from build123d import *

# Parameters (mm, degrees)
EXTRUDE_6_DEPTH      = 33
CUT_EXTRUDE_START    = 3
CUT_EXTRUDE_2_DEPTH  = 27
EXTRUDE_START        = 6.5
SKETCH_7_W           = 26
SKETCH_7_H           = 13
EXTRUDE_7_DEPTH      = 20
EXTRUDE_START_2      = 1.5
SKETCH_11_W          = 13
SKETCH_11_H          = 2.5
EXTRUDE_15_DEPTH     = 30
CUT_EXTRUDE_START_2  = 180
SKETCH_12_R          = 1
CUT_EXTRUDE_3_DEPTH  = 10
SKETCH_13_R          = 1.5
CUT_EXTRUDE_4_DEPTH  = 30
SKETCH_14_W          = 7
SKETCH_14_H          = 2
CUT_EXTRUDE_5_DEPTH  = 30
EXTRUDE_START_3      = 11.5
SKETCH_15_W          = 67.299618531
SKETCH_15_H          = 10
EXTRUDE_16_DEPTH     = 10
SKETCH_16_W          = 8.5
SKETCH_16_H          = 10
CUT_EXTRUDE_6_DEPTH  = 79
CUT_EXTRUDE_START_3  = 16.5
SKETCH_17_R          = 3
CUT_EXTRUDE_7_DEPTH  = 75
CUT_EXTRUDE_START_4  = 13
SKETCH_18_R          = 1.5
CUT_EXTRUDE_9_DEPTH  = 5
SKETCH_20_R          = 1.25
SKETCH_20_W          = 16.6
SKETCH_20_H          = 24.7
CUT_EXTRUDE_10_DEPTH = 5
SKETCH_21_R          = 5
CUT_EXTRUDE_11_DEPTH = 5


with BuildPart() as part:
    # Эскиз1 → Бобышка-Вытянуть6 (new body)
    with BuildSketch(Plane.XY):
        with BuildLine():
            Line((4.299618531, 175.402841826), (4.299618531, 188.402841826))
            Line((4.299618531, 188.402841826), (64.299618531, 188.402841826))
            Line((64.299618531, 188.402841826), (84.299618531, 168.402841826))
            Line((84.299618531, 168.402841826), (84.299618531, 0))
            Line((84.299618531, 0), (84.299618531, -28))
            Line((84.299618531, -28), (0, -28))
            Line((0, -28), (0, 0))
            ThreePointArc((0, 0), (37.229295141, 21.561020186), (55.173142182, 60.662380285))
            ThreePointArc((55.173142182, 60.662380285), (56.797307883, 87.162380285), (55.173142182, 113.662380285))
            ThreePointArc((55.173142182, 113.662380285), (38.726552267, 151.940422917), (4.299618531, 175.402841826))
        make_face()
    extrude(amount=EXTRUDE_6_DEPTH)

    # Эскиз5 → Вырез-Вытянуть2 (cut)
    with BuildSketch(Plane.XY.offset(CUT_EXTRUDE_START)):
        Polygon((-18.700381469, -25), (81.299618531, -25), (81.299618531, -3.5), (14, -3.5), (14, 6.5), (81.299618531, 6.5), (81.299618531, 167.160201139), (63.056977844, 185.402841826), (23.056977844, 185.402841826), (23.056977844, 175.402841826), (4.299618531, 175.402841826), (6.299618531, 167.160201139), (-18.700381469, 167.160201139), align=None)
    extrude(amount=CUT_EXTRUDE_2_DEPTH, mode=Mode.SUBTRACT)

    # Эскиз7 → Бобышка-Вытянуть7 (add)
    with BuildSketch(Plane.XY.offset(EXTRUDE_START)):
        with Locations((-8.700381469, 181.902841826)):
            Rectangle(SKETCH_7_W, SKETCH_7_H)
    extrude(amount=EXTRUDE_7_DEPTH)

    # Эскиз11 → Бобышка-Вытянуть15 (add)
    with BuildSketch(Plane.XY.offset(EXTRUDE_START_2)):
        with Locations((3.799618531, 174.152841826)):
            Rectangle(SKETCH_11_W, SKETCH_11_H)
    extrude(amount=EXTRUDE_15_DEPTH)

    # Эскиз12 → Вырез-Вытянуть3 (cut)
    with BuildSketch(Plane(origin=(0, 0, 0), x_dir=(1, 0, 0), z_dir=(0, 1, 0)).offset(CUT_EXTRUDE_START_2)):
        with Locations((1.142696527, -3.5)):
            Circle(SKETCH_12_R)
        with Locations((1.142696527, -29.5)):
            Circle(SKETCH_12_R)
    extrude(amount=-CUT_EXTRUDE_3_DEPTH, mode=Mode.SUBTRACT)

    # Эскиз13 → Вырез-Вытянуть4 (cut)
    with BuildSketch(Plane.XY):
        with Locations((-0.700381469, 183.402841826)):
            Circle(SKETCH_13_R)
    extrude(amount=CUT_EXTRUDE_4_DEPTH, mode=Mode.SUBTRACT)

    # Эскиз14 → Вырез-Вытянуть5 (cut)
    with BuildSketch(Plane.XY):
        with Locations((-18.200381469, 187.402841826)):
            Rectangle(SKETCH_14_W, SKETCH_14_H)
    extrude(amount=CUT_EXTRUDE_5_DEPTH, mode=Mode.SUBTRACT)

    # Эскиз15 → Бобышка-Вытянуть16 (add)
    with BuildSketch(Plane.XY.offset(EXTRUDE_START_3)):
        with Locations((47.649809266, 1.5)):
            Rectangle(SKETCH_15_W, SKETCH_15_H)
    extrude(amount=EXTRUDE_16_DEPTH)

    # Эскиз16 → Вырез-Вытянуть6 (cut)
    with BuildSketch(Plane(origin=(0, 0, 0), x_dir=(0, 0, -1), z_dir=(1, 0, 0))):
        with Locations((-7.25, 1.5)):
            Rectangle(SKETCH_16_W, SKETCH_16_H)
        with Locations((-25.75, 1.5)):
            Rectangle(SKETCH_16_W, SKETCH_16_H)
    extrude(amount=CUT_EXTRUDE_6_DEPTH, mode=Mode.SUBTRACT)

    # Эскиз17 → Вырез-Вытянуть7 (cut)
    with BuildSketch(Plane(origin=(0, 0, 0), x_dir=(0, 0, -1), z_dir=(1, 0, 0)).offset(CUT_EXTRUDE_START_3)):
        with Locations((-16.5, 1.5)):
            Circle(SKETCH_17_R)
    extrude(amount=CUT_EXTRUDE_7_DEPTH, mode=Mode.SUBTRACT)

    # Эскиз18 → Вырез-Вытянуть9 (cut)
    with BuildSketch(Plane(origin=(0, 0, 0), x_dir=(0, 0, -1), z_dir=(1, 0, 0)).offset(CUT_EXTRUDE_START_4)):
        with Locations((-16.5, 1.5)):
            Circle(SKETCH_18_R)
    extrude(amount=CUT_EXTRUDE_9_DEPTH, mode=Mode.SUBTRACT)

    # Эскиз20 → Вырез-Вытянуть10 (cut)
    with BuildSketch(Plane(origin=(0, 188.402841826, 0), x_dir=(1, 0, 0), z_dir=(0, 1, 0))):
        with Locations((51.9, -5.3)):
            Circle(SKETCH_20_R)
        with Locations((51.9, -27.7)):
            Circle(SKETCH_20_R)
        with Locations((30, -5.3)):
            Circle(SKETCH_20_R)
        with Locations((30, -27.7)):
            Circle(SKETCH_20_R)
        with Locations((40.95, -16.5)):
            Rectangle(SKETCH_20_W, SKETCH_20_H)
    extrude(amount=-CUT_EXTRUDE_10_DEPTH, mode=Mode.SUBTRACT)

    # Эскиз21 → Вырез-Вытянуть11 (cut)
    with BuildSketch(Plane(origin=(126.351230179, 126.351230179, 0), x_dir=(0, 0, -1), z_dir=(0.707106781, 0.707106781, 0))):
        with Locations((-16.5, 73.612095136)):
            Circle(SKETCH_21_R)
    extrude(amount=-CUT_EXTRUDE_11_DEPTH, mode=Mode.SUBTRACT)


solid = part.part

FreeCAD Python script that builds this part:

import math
import FreeCAD as App
import Part
import Sketcher

V = App.Vector
Q = App.Units.Quantity


def add_polygon(sketch, points):
    """Adds a closed chain of lines whose ends are joined by coincident constraints."""
    first, n = sketch.GeometryCount, len(points)
    for a, b in zip(points, points[1:] + points[:1]):
        sketch.addGeometry(Part.LineSegment(App.Vector(*a, 0), App.Vector(*b, 0)), False)
    for i in range(n):
        sketch.addConstraint(Sketcher.Constraint("Coincident", first + i, 2, first + (i + 1) % n, 1))

doc = App.newDocument("Part")
body = doc.addObject("PartDesign::Body", "Body")

# Sketch on XY plane
sketch1 = doc.addObject("Sketcher::SketchObject", "Sketch")
body.addObject(sketch1)
sketch1.AttachmentSupport = (doc.XY_Plane, [""])
sketch1.MapMode = "FlatFace"
sketch1.addGeometry([
    Part.LineSegment(V(4, 188, 0), V(4, 175, 0)),  # 0
    Part.ArcOfCircle(Part.Circle(V(-19, 105, 0), V(0, 0, 1), 75), math.radians(7), math.radians(72)),  # 1
    Part.ArcOfCircle(Part.Circle(V(-160, 87, 0), V(0, 0, 1), 217), math.radians(-7.01), math.radians(7.01)),  # 2
    Part.ArcOfCircle(Part.Circle(V(-15, 69, 0), V(0, 0, 1), 71), math.radians(-78), math.radians(-7)),  # 3
    Part.LineSegment(V(0, 0, 0), V(0, -28, 0)),  # 4
    Part.LineSegment(V(0, -28, 0), V(84, -28, 0)),  # 5
    Part.LineSegment(V(84, -28, 0), V(84, 168, 0)),  # 6
    Part.LineSegment(V(84, 168, 0), V(64, 188, 0)),  # 7
    Part.LineSegment(V(64, 188, 0), V(4, 188, 0)),  # 8
], False)
sketch1.addConstraint([
    Sketcher.Constraint("Coincident", 0, 2, 1, 2),
    Sketcher.Constraint("Tangent", 1, 1, 2, 2),
    Sketcher.Constraint("Tangent", 2, 1, 3, 2),
    Sketcher.Constraint("Coincident", 3, 1, 4, 1),
    Sketcher.Constraint("Coincident", 4, 2, 5, 1),
    Sketcher.Constraint("Coincident", 5, 2, 6, 1),
    Sketcher.Constraint("Coincident", 6, 2, 7, 1),
    Sketcher.Constraint("Coincident", 7, 2, 8, 1),
    Sketcher.Constraint("Coincident", 8, 2, 0, 1),
    Sketcher.Constraint("Vertical", 0),
    Sketcher.Constraint("Vertical", 4),
    Sketcher.Constraint("Horizontal", 5),
    Sketcher.Constraint("Vertical", 6),
    Sketcher.Constraint("Horizontal", 8),
    Sketcher.Constraint("Coincident", 3, 1, -1, 1),
    Sketcher.Constraint("Vertical", 1, 1, 2, 1),
    Sketcher.Constraint("Radius", 2, 217.0),
    Sketcher.Constraint("Radius", 3, 71.0),
    Sketcher.Constraint("Radius", 1, 74.5),
    Sketcher.Constraint("DistanceX", 8, 2, 8, 1, 60.0),
    Sketcher.Constraint("DistanceY", 0, 2, 0, 1, 13.0),
    Sketcher.Constraint("DistanceY", 4, 2, 4, 1, 28.0),
    Sketcher.Constraint("Angle", 7, Q("135 deg")),
    Sketcher.Constraint("DistanceY", 2, 1, 1, 1, 53.0),
    Sketcher.Constraint("DistanceX", 0, 2, 6, 2, 80.0),
    Sketcher.Constraint("DistanceX", 5, 1, 5, 2, 84.299619),
    Sketcher.Constraint("DistanceY", 6, 1, 6, 2, 196.402842),
])
pad1 = doc.addObject("PartDesign::Pad", "Pad")
body.addObject(pad1)
pad1.Profile = sketch1
pad1.Length = 33

# Sketch on XY plane
sketch2 = doc.addObject("Sketcher::SketchObject", "Sketch001")
body.addObject(sketch2)
sketch2.AttachmentSupport = (doc.XY_Plane, [""])
sketch2.MapMode = "FlatFace"
sketch2.AttachmentOffset = App.Placement(V(0, 0, 3), App.Rotation())
add_polygon(sketch2, [(-19, -25), (81, -25), (81, -4), (14, -4), (14, 6), (81, 6), (81, 167), (63, 185), (23, 185), (23, 175), (4, 175), (6, 167), (-19, 167)])  # lines 0-12
sketch2.addConstraint([
    Sketcher.Constraint("Horizontal", 0),
    Sketcher.Constraint("Vertical", 1),
    Sketcher.Constraint("Horizontal", 2),
    Sketcher.Constraint("Vertical", 3),
    Sketcher.Constraint("Horizontal", 4),
    Sketcher.Constraint("Vertical", 5),
    Sketcher.Constraint("Horizontal", 7),
    Sketcher.Constraint("Vertical", 8),
    Sketcher.Constraint("Horizontal", 9),
    Sketcher.Constraint("Horizontal", 11),
    Sketcher.Constraint("Vertical", 12),
    Sketcher.Constraint("Horizontal", 5, 2, 10, 2),
    Sketcher.Constraint("Vertical", 1, 2, 4, 2),
    Sketcher.Constraint("Equal", 3, 8),
    Sketcher.Constraint("DistanceX", 0, 1, 0, 2, 100.0),
    Sketcher.Constraint("DistanceX", 7, 2, 7, 1, 40.0),
    Sketcher.Constraint("DistanceX", 11, 2, 11, 1, 25.0),
    Sketcher.Constraint("DistanceY", 3, 1, 3, 2, 10.0),
    Sketcher.Constraint("Angle", 6, Q("135 deg")),
    Sketcher.Constraint("DistanceY", 1, 1, 1, 2, 21.5),
    Sketcher.Constraint("DistanceY", 0, 2, -1, 1, 25.0),
    Sketcher.Constraint("DistanceX", -1, 1, 2, 2, 14.0),
    Sketcher.Constraint("DistanceX", 9, 2, 5, 2, 77.0),
    Sketcher.Constraint("DistanceY", 5, 1, 5, 2, 160.660201),
    Sketcher.Constraint("DistanceX", 2, 2, 2, 1, 67.299619),
    Sketcher.Constraint("DistanceX", 9, 2, 9, 1, 18.757359),
])
pocket1 = doc.addObject("PartDesign::Pocket", "Pocket")
body.addObject(pocket1)
pocket1.Profile = sketch2
pocket1.Length = 27
pocket1.Reversed = True

# Sketch on XY plane
sketch3 = doc.addObject("Sketcher::SketchObject", "Sketch002")
body.addObject(sketch3)
sketch3.AttachmentSupport = (doc.XY_Plane, [""])
sketch3.MapMode = "FlatFace"
sketch3.AttachmentOffset = App.Placement(V(0, 0, 6.5), App.Rotation())
add_polygon(sketch3, [(-22, 188), (-22, 175), (4, 175), (4, 188)])  # lines 0-3
sketch3.addConstraint([
    Sketcher.Constraint("Vertical", 0),
    Sketcher.Constraint("Horizontal", 1),
    Sketcher.Constraint("Vertical", 2),
    Sketcher.Constraint("Horizontal", 3),
    Sketcher.Constraint("DistanceX", 1, 1, 1, 2, 26.0),
    Sketcher.Constraint("DistanceY", 0, 2, 0, 1, 13.0),
    Sketcher.Constraint("DistanceX", 0, 2, -1, 1, 21.700381),
    Sketcher.Constraint("DistanceY", -1, 1, 0, 2, 175.402842),
])
pad2 = doc.addObject("PartDesign::Pad", "Pad001")
body.addObject(pad2)
pad2.Profile = sketch3
pad2.Length = 20

# Sketch on XY plane
sketch4 = doc.addObject("Sketcher::SketchObject", "Sketch003")
body.addObject(sketch4)
sketch4.AttachmentSupport = (doc.XY_Plane, [""])
sketch4.MapMode = "FlatFace"
sketch4.AttachmentOffset = App.Placement(V(0, 0, 1.5), App.Rotation())
add_polygon(sketch4, [(-2.7, 175.4), (-2.7, 172.9), (10.3, 172.9), (10.3, 175.4)])  # lines 0-3
sketch4.addConstraint([
    Sketcher.Constraint("Vertical", 0),
    Sketcher.Constraint("Horizontal", 1),
    Sketcher.Constraint("Vertical", 2),
    Sketcher.Constraint("Horizontal", 3),
    Sketcher.Constraint("DistanceX", 1, 1, 1, 2, 13.0),
    Sketcher.Constraint("DistanceY", 0, 2, 0, 1, 2.5),
    Sketcher.Constraint("DistanceX", 0, 2, -1, 1, 2.700381),
    Sketcher.Constraint("DistanceY", -1, 1, 0, 2, 172.902842),
])
pad3 = doc.addObject("PartDesign::Pad", "Pad002")
body.addObject(pad3)
pad3.Profile = sketch4
pad3.Length = 30

# Sketch on XZ plane
sketch5 = doc.addObject("Sketcher::SketchObject", "Sketch004")
body.addObject(sketch5)
sketch5.AttachmentSupport = (doc.XZ_Plane, [""])
sketch5.MapMode = "FlatFace"
sketch5.AttachmentOffset = App.Placement(V(0, 0, -180), App.Rotation())
sketch5.addGeometry([
    Part.Circle(V(1.1, 3.5, 0), V(0, 0, 1), 1),
    Part.Circle(V(1.1, 29.5, 0), V(0, 0, 1), 1),
], False)
sketch5.addConstraint([
    Sketcher.Constraint("Equal", 0, 1),
    Sketcher.Constraint("Vertical", 0, 3, 1, 3),
    Sketcher.Constraint("Diameter", 0, 2.0),
    Sketcher.Constraint("DistanceY", 0, 3, 1, 3, 26.0),
    Sketcher.Constraint("DistanceY", -1, 1, 0, 3, 3.5),
    Sketcher.Constraint("DistanceX", -1, 1, 0, 3, 1.142697),
])
pocket2 = doc.addObject("PartDesign::Pocket", "Pocket001")
body.addObject(pocket2)
pocket2.Profile = sketch5
pocket2.Length = 10
pocket2.Reversed = True

# Sketch on XY plane
sketch6 = doc.addObject("Sketcher::SketchObject", "Sketch005")
body.addObject(sketch6)
sketch6.AttachmentSupport = (doc.XY_Plane, [""])
sketch6.MapMode = "FlatFace"
sketch6.addGeometry(Part.Circle(V(-0.7, 183.4, 0), V(0, 0, 1), 1.5), False)
sketch6.addConstraint([
    Sketcher.Constraint("Diameter", 0, 3.0),
    Sketcher.Constraint("DistanceX", 0, 3, -1, 1, 0.700381),
    Sketcher.Constraint("DistanceY", -1, 1, 0, 3, 183.402842),
])
pocket3 = doc.addObject("PartDesign::Pocket", "Pocket002")
body.addObject(pocket3)
pocket3.Profile = sketch6
pocket3.Length = 30
pocket3.Reversed = True

# Sketch on XY plane
sketch7 = doc.addObject("Sketcher::SketchObject", "Sketch006")
body.addObject(sketch7)
sketch7.AttachmentSupport = (doc.XY_Plane, [""])
sketch7.MapMode = "FlatFace"
add_polygon(sketch7, [(-21.7, 188.4), (-21.7, 186.4), (-14.7, 186.4), (-14.7, 188.4)])  # lines 0-3
sketch7.addConstraint([
    Sketcher.Constraint("Vertical", 0),
    Sketcher.Constraint("Horizontal", 1),
    Sketcher.Constraint("Vertical", 2),
    Sketcher.Constraint("Horizontal", 3),
    Sketcher.Constraint("DistanceX", 1, 1, 1, 2, 7.0),
    Sketcher.Constraint("DistanceY", 0, 2, 0, 1, 2.0),
    Sketcher.Constraint("DistanceX", 0, 2, -1, 1, 21.700381),
    Sketcher.Constraint("DistanceY", -1, 1, 0, 2, 186.402842),
])
pocket4 = doc.addObject("PartDesign::Pocket", "Pocket003")
body.addObject(pocket4)
pocket4.Profile = sketch7
pocket4.Length = 30
pocket4.Reversed = True

# Sketch on XY plane
sketch8 = doc.addObject("Sketcher::SketchObject", "Sketch007")
body.addObject(sketch8)
sketch8.AttachmentSupport = (doc.XY_Plane, [""])
sketch8.MapMode = "FlatFace"
sketch8.AttachmentOffset = App.Placement(V(0, 0, 11.5), App.Rotation())
add_polygon(sketch8, [(14, 6), (14, -4), (81, -4), (81, 6)])  # lines 0-3
sketch8.addConstraint([
    Sketcher.Constraint("Vertical", 0),
    Sketcher.Constraint("Horizontal", 1),
    Sketcher.Constraint("Vertical", 2),
    Sketcher.Constraint("Horizontal", 3),
    Sketcher.Constraint("DistanceY", 0, 2, 0, 1, 10.0),
    Sketcher.Constraint("DistanceX", -1, 1, 0, 2, 14.0),
    Sketcher.Constraint("DistanceY", 0, 2, -1, 1, 3.5),
    Sketcher.Constraint("DistanceX", 1, 1, 1, 2, 67.299619),
])
pad4 = doc.addObject("PartDesign::Pad", "Pad003")
body.addObject(pad4)
pad4.Profile = sketch8
pad4.Length = 10

# Sketch on YZ plane
sketch9 = doc.addObject("Sketcher::SketchObject", "Sketch008")
body.addObject(sketch9)
sketch9.AttachmentSupport = (doc.YZ_Plane, [""])
sketch9.MapMode = "FlatFace"
add_polygon(sketch9, [(6, 12), (-4, 12), (-4, 3), (6, 3)])  # lines 0-3
add_polygon(sketch9, [(6, 30), (-4, 30), (-4, 22), (6, 22)])  # lines 4-7
sketch9.addConstraint([
    Sketcher.Constraint("Horizontal", 0),
    Sketcher.Constraint("Vertical", 1),
    Sketcher.Constraint("Horizontal", 2),
    Sketcher.Constraint("Vertical", 3),
    Sketcher.Constraint("Horizontal", 4),
    Sketcher.Constraint("Vertical", 5),
    Sketcher.Constraint("Horizontal", 6),
    Sketcher.Constraint("Vertical", 7),
    Sketcher.Constraint("Vertical", 1, 2, 4, 2),
    Sketcher.Constraint("Vertical", 3, 2, 6, 2),
    Sketcher.Constraint("Equal", 3, 5),
    Sketcher.Constraint("DistanceX", 0, 2, 0, 1, 10.0),
    Sketcher.Constraint("DistanceY", 1, 2, 1, 1, 8.5),
    Sketcher.Constraint("DistanceY", -1, 1, 1, 2, 3.0),
    Sketcher.Constraint("DistanceY", -1, 1, 4, 2, 30.0),
    Sketcher.Constraint("DistanceX", 0, 2, -1, 1, 3.5),
])
pocket5 = doc.addObject("PartDesign::Pocket", "Pocket004")
body.addObject(pocket5)
pocket5.Profile = sketch9
pocket5.Length = 79
pocket5.Reversed = True

# Sketch on YZ plane
sketch10 = doc.addObject("Sketcher::SketchObject", "Sketch009")
body.addObject(sketch10)
sketch10.AttachmentSupport = (doc.YZ_Plane, [""])
sketch10.MapMode = "FlatFace"
sketch10.AttachmentOffset = App.Placement(V(0, 0, 16.5), App.Rotation())
sketch10.addGeometry(Part.Circle(V(1.5, 16.5, 0), V(0, 0, 1), 3), False)
sketch10.addConstraint([
    Sketcher.Constraint("Diameter", 0, 6.0),
    Sketcher.Constraint("DistanceX", -1, 1, 0, 3, 1.5),
    Sketcher.Constraint("DistanceY", -1, 1, 0, 3, 16.5),
])
pocket6 = doc.addObject("PartDesign::Pocket", "Pocket005")
body.addObject(pocket6)
pocket6.Profile = sketch10
pocket6.Length = 75
pocket6.Reversed = True

# Sketch on YZ plane
sketch11 = doc.addObject("Sketcher::SketchObject", "Sketch010")
body.addObject(sketch11)
sketch11.AttachmentSupport = (doc.YZ_Plane, [""])
sketch11.MapMode = "FlatFace"
sketch11.AttachmentOffset = App.Placement(V(0, 0, 13), App.Rotation())
sketch11.addGeometry(Part.Circle(V(1.5, 16.5, 0), V(0, 0, 1), 1.5), False)
sketch11.addConstraint([
    Sketcher.Constraint("Diameter", 0, 3.0),
    Sketcher.Constraint("DistanceX", -1, 1, 0, 3, 1.5),
    Sketcher.Constraint("DistanceY", -1, 1, 0, 3, 16.5),
])
pocket7 = doc.addObject("PartDesign::Pocket", "Pocket006")
body.addObject(pocket7)
pocket7.Profile = sketch11
pocket7.Length = 5
pocket7.Reversed = True

# Sketch on XZ plane
sketch12 = doc.addObject("Sketcher::SketchObject", "Sketch011")
body.addObject(sketch12)
sketch12.AttachmentSupport = (doc.XZ_Plane, [""])
sketch12.MapMode = "FlatFace"
sketch12.AttachmentOffset = App.Placement(V(0, 0, -188.402842), App.Rotation())
sketch12.addGeometry(Part.Circle(V(51.9, 5.3, 0), V(0, 0, 1), 1.2), False)  # 0
sketch12.addGeometry(Part.Circle(V(51.9, 27.7, 0), V(0, 0, 1), 1.2), False)  # 1
sketch12.addGeometry(Part.Circle(V(30, 5.3, 0), V(0, 0, 1), 1.2), False)  # 2
sketch12.addGeometry(Part.Circle(V(30, 27.7, 0), V(0, 0, 1), 1.2), False)  # 3
add_polygon(sketch12, [(32.6, 4.2), (32.6, 28.9), (49.2, 28.9), (49.2, 4.2)])  # lines 4-7
sketch12.addConstraint([
    Sketcher.Constraint("Vertical", 4),
    Sketcher.Constraint("Horizontal", 5),
    Sketcher.Constraint("Vertical", 6),
    Sketcher.Constraint("Horizontal", 7),
    Sketcher.Constraint("Equal", 0, 1),
    Sketcher.Constraint("Equal", 1, 2),
    Sketcher.Constraint("Equal", 2, 3),
    Sketcher.Constraint("Horizontal", 0, 3, 2, 3),
    Sketcher.Constraint("Horizontal", 1, 3, 3, 3),
    Sketcher.Constraint("Vertical", 0, 3, 1, 3),
    Sketcher.Constraint("Vertical", 2, 3, 3, 3),
    Sketcher.Constraint("Diameter", 0, 2.5),
    Sketcher.Constraint("DistanceX", 5, 1, 5, 2, 16.6),
    Sketcher.Constraint("DistanceY", 4, 1, 4, 2, 24.7),
    Sketcher.Constraint("DistanceX", -1, 1, 2, 3, 30.0),
    Sketcher.Constraint("DistanceX", -1, 1, 0, 3, 51.9),
    Sketcher.Constraint("DistanceY", -1, 1, 0, 3, 5.3),
    Sketcher.Constraint("DistanceY", -1, 1, 1, 3, 27.7),
    Sketcher.Constraint("DistanceX", -1, 1, 4, 2, 32.65),
    Sketcher.Constraint("DistanceY", -1, 1, 4, 2, 28.85),
])
pocket8 = doc.addObject("PartDesign::Pocket", "Pocket007")
body.addObject(pocket8)
pocket8.Profile = sketch12
pocket8.Length = 5
pocket8.Reversed = True

# Sketch on an angled plane
sketch13 = doc.addObject("Sketcher::SketchObject", "Sketch012")
body.addObject(sketch13)
sketch13.Placement = App.Placement(V(126.35123, 126.35123, 0), App.Rotation(V(0, 0, -1), V(-0.707106781, 0.707106781, 0), V(0.707106781, 0.707106781, 0), "ZXY"))
sketch13.addGeometry(Part.Circle(V(-16, 74, 0), V(0, 0, 1), 5), False)
sketch13.addConstraint([
    Sketcher.Constraint("Diameter", 0, 10.0),
    Sketcher.Constraint("DistanceX", 0, 3, -1, 1, 16.5),
    Sketcher.Constraint("DistanceY", -1, 1, 0, 3, 73.612095),
])
pocket9 = doc.addObject("PartDesign::Pocket", "Pocket008")
body.addObject(pocket9)
pocket9.Profile = sketch13
pocket9.Length = 5

doc.recompute()
